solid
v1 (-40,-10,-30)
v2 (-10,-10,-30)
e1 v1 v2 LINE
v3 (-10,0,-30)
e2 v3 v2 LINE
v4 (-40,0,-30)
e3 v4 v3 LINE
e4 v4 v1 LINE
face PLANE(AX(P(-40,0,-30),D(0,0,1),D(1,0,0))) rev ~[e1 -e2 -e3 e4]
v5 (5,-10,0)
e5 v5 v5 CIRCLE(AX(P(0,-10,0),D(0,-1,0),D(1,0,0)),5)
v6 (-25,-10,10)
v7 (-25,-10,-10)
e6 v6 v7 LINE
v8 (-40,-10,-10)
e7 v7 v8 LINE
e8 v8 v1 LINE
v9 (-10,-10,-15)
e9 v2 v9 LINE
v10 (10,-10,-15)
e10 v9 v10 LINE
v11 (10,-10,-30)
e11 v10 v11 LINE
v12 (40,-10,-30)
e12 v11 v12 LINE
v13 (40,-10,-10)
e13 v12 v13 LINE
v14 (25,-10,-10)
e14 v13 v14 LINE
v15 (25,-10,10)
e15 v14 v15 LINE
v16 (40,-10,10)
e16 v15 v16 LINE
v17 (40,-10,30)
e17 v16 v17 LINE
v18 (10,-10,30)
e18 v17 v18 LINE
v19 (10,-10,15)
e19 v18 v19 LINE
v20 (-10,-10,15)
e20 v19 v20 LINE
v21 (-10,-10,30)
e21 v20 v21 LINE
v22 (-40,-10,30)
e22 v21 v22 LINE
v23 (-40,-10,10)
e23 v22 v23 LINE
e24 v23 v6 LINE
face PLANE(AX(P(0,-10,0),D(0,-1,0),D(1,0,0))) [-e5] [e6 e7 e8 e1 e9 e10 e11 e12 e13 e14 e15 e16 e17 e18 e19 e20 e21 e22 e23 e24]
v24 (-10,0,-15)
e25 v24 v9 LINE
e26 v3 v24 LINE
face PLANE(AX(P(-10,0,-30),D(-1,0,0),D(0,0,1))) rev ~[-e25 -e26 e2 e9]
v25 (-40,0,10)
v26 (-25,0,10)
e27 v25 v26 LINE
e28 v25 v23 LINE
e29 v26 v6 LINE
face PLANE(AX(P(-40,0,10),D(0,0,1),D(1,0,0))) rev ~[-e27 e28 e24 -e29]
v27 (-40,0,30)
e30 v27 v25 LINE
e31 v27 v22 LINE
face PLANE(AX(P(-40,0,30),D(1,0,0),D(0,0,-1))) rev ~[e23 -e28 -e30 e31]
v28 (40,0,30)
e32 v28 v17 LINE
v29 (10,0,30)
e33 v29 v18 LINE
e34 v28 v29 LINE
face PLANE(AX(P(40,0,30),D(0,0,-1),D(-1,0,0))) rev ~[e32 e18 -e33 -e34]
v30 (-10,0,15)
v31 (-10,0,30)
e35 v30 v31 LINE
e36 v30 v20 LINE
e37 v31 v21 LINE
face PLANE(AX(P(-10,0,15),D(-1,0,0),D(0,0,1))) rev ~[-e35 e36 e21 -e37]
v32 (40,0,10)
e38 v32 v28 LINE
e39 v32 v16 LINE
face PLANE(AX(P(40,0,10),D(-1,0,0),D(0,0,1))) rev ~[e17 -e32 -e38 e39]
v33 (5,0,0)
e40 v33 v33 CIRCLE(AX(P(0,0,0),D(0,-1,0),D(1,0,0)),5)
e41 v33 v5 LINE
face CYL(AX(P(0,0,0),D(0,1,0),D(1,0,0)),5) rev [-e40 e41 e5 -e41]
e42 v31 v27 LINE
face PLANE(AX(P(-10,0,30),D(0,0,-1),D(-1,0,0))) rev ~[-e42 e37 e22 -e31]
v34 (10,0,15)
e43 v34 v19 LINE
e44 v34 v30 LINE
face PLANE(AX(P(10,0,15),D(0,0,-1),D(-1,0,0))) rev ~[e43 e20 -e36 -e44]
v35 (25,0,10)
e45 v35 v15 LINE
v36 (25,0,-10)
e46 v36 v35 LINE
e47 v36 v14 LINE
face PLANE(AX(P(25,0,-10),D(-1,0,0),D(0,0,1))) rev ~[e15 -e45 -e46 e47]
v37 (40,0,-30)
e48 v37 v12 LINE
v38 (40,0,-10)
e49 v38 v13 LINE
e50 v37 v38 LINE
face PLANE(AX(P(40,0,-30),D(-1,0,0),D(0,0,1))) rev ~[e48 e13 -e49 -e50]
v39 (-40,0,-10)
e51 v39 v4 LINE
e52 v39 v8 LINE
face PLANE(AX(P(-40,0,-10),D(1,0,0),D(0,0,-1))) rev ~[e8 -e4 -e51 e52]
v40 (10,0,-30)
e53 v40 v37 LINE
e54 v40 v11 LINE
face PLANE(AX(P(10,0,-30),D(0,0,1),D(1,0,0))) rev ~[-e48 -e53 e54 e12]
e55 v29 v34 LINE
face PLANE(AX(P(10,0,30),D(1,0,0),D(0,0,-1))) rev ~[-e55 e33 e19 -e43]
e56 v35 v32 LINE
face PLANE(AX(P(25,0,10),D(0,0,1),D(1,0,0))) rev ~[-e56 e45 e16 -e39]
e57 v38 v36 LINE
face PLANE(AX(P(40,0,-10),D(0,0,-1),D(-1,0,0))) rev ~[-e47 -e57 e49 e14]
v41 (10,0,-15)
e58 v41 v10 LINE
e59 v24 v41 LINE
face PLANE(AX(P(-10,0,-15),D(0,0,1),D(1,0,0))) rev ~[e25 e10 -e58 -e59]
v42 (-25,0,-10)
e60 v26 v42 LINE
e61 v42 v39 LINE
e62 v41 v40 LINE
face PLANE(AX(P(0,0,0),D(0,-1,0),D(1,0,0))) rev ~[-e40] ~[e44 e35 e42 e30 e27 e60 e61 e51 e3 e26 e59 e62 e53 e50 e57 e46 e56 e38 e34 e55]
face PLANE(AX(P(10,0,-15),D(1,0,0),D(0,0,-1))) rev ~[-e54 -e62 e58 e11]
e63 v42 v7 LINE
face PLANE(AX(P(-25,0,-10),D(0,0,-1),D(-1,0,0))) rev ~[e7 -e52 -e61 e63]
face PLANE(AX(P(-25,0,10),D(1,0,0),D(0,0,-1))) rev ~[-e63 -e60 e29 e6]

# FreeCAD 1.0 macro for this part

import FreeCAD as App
import Part
import Sketcher

V = App.Vector

doc = App.newDocument("Part")
body = doc.addObject("PartDesign::Body", "Body")

# Sketch on XZ plane
sketch1 = body.newObject("Sketcher::SketchObject", "Sketch")
sketch1.AttachmentSupport = (doc.getObject("XZ_Plane"), [""])
sketch1.MapMode = "FlatFace"
sketch1.addGeometry(Part.LineSegment(V(-25, 10, 0), V(-25, -10, 0)), False)
sketch1.addGeometry(Part.LineSegment(V(-25, -10, 0), V(-40, -10, 0)), False)
sketch1.addGeometry(Part.LineSegment(V(-40, -10, 0), V(-40, -30, 0)), False)
sketch1.addGeometry(Part.LineSegment(V(-40, -30, 0), V(-10, -30, 0)), False)
sketch1.addGeometry(Part.LineSegment(V(-10, -30, 0), V(-10, -15, 0)), False)
sketch1.addGeometry(Part.LineSegment(V(-10, -15, 0), V(10, -15, 0)), False)
sketch1.addGeometry(Part.LineSegment(V(10, -15, 0), V(10, -30, 0)), False)
sketch1.addGeometry(Part.LineSegment(V(10, -30, 0), V(40, -30, 0)), False)
sketch1.addGeometry(Part.LineSegment(V(40, -30, 0), V(40, -10, 0)), False)
sketch1.addGeometry(Part.LineSegment(V(40, -10, 0), V(25, -10, 0)), False)
sketch1.addGeometry(Part.LineSegment(V(25, -10, 0), V(25, 10, 0)), False)
sketch1.addGeometry(Part.LineSegment(V(25, 10, 0), V(40, 10, 0)), False)
sketch1.addGeometry(Part.LineSegment(V(40, 10, 0), V(40, 30, 0)), False)
sketch1.addGeometry(Part.LineSegment(V(40, 30, 0), V(10, 30, 0)), False)
sketch1.addGeometry(Part.LineSegment(V(10, 30, 0), V(10, 15, 0)), False)
sketch1.addGeometry(Part.LineSegment(V(10, 15, 0), V(-10, 15, 0)), False)
sketch1.addGeometry(Part.LineSegment(V(-10, 15, 0), V(-10, 30, 0)), False)
sketch1.addGeometry(Part.LineSegment(V(-10, 30, 0), V(-40, 30, 0)), False)
sketch1.addGeometry(Part.LineSegment(V(-40, 30, 0), V(-40, 10, 0)), False)
sketch1.addGeometry(Part.LineSegment(V(-40, 10, 0), V(-25, 10, 0)), False)
sketch1.addGeometry(Part.Circle(V(0, 0, 0), V(0, 0, 1), 5), False)
sketch1.addConstraint(Sketcher.Constraint("Coincident", 0, 2, 1, 1))
sketch1.addConstraint(Sketcher.Constraint("Coincident", 1, 2, 2, 1))
sketch1.addConstraint(Sketcher.Constraint("Coincident", 2, 2, 3, 1))
sketch1.addConstraint(Sketcher.Constraint("Coincident", 3, 2, 4, 1))
sketch1.addConstraint(Sketcher.Constraint("Coincident", 4, 2, 5, 1))
sketch1.addConstraint(Sketcher.Constraint("Coincident", 5, 2, 6, 1))
sketch1.addConstraint(Sketcher.Constraint("Coincident", 6, 2, 7, 1))
sketch1.addConstraint(Sketcher.Constraint("Coincident", 7, 2, 8, 1))
sketch1.addConstraint(Sketcher.Constraint("Coincident", 8, 2, 9, 1))
sketch1.addConstraint(Sketcher.Constraint("Coincident", 9, 2, 10, 1))
sketch1.addConstraint(Sketcher.Constraint("Coincident", 10, 2, 11, 1))
sketch1.addConstraint(Sketcher.Constraint("Coincident", 11, 2, 12, 1))
sketch1.addConstraint(Sketcher.Constraint("Coincident", 12, 2, 13, 1))
sketch1.addConstraint(Sketcher.Constraint("Coincident", 13, 2, 14, 1))
sketch1.addConstraint(Sketcher.Constraint("Coincident", 14, 2, 15, 1))
sketch1.addConstraint(Sketcher.Constraint("Coincident", 15, 2, 16, 1))
sketch1.addConstraint(Sketcher.Constraint("Coincident", 16, 2, 17, 1))
sketch1.addConstraint(Sketcher.Constraint("Coincident", 17, 2, 18, 1))
sketch1.addConstraint(Sketcher.Constraint("Coincident", 18, 2, 19, 1))
sketch1.addConstraint(Sketcher.Constraint("Coincident", 19, 2, 0, 1))
sketch1.addConstraint(Sketcher.Constraint("Vertical", 0))
sketch1.addConstraint(Sketcher.Constraint("Horizontal", 1))
sketch1.addConstraint(Sketcher.Constraint("Vertical", 2))
sketch1.addConstraint(Sketcher.Constraint("Horizontal", 3))
sketch1.addConstraint(Sketcher.Constraint("Vertical", 4))
sketch1.addConstraint(Sketcher.Constraint("Horizontal", 5))
sketch1.addConstraint(Sketcher.Constraint("Vertical", 6))
sketch1.addConstraint(Sketcher.Constraint("Horizontal", 7))
sketch1.addConstraint(Sketcher.Constraint("Vertical", 8))
sketch1.addConstraint(Sketcher.Constraint("Horizontal", 9))
sketch1.addConstraint(Sketcher.Constraint("Vertical", 10))
sketch1.addConstraint(Sketcher.Constraint("Horizontal", 11))
sketch1.addConstraint(Sketcher.Constraint("Vertical", 12))
sketch1.addConstraint(Sketcher.Constraint("Horizontal", 13))
sketch1.addConstraint(Sketcher.Constraint("Vertical", 14))
sketch1.addConstraint(Sketcher.Constraint("Horizontal", 15))
sketch1.addConstraint(Sketcher.Constraint("Vertical", 16))
sketch1.addConstraint(Sketcher.Constraint("Horizontal", 17))
sketch1.addConstraint(Sketcher.Constraint("Vertical", 18))
sketch1.addConstraint(Sketcher.Constraint("Horizontal", 19))
sketch1.addConstraint(Sketcher.Constraint("Coincident", 20, 3, -1, 1))
sketch1.addConstraint(Sketcher.Constraint("Symmetric", 0, 2, 10, 2, -1, 1))
sketch1.addConstraint(Sketcher.Constraint("Symmetric", 2, 2, 12, 2, -1, 1))
sketch1.addConstraint(Sketcher.Constraint("Symmetric", 4, 2, 14, 2, -1, 1))
sketch1.addConstraint(Sketcher.Constraint("Symmetric", 6, 2, 16, 2, -1, 1))
sketch1.addConstraint(Sketcher.Constraint("Symmetric", 8, 2, 18, 2, -1, 1))
sketch1.addConstraint(Sketcher.Constraint("Symmetric", 3, 2, 6, 2, -2))
sketch1.addConstraint(Sketcher.Constraint("Symmetric", 1, 2, 8, 2, -2))
sketch1.addConstraint(Sketcher.Constraint("Equal", 15, 0))
sketch1.addConstraint(Sketcher.Constraint("Equal", 0, 2))
sketch1.addConstraint(Sketcher.Constraint("Equal", 19, 4))
sketch1.addConstraint(Sketcher.Constraint("Diameter", 20, 10.0))
sketch1.addConstraint(Sketcher.Constraint("DistanceX", 1, 2, 1, 1, 15.0))
sketch1.addConstraint(Sketcher.Constraint("DistanceX", 3, 1, 3, 2, 30.0))
sketch1.addConstraint(Sketcher.Constraint("DistanceX", 5, 1, 5, 2, 20.0))
pad1 = body.newObject("PartDesign::Pad", "Pad")
pad1.Profile = sketch1
pad1.Length = 10

doc.recompute()
